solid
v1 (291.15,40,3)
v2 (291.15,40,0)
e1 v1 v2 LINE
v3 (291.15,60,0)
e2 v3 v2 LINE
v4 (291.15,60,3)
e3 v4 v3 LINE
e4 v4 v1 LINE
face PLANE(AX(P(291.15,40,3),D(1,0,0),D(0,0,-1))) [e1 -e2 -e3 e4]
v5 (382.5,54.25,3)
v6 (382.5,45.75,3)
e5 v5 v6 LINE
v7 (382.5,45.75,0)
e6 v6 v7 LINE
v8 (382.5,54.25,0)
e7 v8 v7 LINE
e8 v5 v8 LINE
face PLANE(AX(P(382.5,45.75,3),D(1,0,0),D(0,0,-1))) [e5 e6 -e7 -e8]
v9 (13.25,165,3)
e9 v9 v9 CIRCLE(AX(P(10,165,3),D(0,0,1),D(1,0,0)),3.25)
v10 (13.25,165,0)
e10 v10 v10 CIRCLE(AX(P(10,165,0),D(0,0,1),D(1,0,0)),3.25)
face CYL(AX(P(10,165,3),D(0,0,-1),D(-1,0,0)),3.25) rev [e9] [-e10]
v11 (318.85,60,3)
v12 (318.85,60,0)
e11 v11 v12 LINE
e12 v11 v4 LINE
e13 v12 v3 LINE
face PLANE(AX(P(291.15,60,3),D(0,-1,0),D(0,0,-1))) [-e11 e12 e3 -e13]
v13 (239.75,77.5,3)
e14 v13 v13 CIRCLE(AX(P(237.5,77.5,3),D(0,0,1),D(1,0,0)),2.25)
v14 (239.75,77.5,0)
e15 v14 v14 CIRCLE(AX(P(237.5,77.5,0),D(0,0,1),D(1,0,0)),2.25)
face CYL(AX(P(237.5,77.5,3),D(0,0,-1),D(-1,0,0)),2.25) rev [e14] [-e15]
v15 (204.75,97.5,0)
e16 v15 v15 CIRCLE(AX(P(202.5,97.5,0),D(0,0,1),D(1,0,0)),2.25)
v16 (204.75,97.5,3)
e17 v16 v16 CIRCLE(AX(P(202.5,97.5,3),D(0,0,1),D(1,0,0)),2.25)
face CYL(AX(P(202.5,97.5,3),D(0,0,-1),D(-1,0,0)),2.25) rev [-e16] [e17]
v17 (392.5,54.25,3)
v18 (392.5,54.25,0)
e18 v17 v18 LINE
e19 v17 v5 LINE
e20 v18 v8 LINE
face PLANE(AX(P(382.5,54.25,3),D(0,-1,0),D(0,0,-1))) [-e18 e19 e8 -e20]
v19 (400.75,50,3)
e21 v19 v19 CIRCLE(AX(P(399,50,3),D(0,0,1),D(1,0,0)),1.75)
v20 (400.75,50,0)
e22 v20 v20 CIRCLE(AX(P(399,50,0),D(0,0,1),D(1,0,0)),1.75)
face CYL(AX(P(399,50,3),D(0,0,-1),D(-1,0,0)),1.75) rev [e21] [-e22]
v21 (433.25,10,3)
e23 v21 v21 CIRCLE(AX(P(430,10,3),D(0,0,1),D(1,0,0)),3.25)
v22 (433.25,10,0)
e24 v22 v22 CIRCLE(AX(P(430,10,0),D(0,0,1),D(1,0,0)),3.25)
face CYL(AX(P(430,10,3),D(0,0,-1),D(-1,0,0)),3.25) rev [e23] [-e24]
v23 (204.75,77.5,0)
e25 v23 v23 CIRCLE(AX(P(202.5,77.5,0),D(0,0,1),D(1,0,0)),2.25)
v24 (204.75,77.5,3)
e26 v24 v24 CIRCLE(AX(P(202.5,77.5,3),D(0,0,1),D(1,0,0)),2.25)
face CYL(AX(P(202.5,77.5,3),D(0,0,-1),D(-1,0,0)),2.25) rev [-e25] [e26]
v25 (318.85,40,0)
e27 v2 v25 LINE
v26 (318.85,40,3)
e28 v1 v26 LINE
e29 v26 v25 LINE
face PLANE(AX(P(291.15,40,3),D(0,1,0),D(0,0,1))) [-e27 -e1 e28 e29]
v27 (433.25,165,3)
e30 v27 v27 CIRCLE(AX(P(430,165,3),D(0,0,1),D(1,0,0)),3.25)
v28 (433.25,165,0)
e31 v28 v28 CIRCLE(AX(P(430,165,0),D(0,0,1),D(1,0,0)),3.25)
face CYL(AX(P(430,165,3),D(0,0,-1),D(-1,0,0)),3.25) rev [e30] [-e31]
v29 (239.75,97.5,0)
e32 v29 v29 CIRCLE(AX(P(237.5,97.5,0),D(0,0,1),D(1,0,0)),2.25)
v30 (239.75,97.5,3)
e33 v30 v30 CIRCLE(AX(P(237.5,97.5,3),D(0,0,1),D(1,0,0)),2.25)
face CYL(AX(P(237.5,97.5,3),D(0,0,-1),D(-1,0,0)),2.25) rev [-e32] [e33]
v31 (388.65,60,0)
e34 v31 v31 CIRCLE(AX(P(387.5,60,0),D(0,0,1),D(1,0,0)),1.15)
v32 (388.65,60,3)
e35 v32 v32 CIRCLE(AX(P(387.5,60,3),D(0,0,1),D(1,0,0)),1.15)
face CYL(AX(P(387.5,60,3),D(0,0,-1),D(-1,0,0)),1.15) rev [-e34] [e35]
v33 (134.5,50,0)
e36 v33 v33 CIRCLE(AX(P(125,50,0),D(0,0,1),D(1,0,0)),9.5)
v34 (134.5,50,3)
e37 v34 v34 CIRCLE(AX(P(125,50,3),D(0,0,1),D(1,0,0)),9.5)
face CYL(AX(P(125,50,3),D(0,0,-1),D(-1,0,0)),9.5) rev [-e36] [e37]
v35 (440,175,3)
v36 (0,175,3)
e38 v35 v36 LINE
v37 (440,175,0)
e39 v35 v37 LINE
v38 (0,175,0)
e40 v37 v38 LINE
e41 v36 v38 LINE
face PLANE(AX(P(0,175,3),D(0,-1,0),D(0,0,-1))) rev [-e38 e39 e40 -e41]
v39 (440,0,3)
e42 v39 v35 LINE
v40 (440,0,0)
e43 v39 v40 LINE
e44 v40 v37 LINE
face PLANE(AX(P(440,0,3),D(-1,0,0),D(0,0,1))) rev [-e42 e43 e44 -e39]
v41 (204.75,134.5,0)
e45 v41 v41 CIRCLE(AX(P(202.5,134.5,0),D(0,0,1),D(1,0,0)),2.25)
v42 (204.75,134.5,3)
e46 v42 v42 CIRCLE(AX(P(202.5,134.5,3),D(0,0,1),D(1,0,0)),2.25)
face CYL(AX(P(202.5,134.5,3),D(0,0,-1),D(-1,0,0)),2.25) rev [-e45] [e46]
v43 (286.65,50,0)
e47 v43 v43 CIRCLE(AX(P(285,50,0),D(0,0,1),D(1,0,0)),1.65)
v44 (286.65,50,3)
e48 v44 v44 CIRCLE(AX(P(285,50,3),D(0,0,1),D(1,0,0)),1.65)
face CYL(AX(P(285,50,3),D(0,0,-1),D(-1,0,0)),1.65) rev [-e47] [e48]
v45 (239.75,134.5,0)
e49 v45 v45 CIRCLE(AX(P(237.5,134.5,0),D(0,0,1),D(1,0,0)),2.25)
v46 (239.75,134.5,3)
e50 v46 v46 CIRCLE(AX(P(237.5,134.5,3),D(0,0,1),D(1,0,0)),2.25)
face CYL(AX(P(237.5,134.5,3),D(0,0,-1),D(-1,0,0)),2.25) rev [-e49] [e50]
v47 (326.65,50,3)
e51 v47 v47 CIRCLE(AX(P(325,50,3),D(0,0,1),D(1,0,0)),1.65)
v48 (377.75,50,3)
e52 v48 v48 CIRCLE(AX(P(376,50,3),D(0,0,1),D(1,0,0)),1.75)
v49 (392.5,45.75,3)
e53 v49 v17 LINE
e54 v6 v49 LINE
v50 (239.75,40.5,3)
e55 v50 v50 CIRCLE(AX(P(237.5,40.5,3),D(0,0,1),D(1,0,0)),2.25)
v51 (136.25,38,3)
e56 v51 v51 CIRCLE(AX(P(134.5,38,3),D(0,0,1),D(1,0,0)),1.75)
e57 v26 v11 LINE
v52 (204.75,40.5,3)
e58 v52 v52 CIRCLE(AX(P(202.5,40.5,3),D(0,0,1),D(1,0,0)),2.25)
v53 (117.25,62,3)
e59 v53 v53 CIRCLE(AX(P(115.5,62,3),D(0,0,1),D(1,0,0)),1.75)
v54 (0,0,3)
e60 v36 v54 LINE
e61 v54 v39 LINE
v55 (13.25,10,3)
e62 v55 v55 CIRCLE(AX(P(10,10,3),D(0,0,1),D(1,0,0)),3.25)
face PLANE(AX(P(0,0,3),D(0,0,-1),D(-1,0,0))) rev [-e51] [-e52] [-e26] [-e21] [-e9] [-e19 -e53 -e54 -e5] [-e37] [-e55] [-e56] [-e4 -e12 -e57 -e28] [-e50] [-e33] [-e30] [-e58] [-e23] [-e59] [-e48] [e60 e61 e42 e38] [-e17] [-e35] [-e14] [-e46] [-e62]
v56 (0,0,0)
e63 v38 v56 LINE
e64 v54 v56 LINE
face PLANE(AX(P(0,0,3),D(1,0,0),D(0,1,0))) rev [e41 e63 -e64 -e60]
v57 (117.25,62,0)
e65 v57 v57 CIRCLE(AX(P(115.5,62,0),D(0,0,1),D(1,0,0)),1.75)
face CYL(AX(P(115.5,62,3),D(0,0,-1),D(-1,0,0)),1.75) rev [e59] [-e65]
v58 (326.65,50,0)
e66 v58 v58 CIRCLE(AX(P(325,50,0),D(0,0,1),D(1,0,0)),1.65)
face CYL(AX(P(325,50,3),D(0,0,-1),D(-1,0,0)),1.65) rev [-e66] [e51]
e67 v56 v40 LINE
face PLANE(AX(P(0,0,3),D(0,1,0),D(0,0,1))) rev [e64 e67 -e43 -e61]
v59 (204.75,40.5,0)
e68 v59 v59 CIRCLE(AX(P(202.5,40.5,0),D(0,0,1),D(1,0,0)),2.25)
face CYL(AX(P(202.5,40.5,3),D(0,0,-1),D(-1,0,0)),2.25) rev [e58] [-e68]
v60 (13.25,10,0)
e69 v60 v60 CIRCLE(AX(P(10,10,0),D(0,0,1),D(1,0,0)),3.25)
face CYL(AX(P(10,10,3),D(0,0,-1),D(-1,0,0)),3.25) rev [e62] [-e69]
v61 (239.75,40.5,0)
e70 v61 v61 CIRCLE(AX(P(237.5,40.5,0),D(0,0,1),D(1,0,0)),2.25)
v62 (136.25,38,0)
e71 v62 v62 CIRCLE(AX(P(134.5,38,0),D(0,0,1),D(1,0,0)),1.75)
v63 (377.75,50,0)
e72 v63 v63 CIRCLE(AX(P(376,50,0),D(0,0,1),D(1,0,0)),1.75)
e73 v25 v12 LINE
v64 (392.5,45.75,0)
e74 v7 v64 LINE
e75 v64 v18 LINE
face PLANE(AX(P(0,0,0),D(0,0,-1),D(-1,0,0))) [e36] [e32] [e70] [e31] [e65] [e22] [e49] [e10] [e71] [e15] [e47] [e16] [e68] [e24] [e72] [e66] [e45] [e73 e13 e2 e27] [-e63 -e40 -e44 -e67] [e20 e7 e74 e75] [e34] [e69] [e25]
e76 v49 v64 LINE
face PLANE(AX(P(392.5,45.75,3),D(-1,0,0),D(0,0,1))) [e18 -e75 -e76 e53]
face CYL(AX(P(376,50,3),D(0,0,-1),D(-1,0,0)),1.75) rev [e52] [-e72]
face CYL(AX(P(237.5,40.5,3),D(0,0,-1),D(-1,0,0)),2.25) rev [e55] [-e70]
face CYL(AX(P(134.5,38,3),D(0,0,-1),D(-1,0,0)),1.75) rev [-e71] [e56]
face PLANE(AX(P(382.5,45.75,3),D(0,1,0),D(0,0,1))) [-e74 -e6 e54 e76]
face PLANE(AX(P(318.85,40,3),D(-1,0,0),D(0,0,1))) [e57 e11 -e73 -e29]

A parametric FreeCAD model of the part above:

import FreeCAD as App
import Part
import Sketcher

doc = App.newDocument("Part")
body = doc.addObject("PartDesign::Body", "Body")

# Sketch on XY plane
sketch1 = body.newObject("Sketcher::SketchObject", "Sketch")
sketch1.AttachmentSupport = (doc.getObject("XY_Plane"), [""])
sketch1.MapMode = "FlatFace"
sketch1.addGeometry([
    Part.LineSegment(App.Vector(0, 175, 0), App.Vector(0, 0, 0)),  # 0
    Part.LineSegment(App.Vector(0, 0, 0), App.Vector(440, 0, 0)),  # 1
    Part.LineSegment(App.Vector(440, 0, 0), App.Vector(440, 175, 0)),  # 2
    Part.LineSegment(App.Vector(440, 175, 0), App.Vector(0, 175, 0)),  # 3
    Part.Circle(App.Vector(10, 10, 0), App.Vector(0, 0, 1), 3.2),  # 4
    Part.Circle(App.Vector(134.5, 38, 0), App.Vector(0, 0, 1), 1.8),  # 5
    Part.Circle(App.Vector(202.5, 40.5, 0), App.Vector(0, 0, 1), 2.2),  # 6
    Part.Circle(App.Vector(125, 50, 0), App.Vector(0, 0, 1), 9.5),  # 7
    Part.Circle(App.Vector(115.5, 62, 0), App.Vector(0, 0, 1), 1.8),  # 8
    Part.Circle(App.Vector(202.5, 77.5, 0), App.Vector(0, 0, 1), 2.2),  # 9
    Part.Circle(App.Vector(237.5, 40.5, 0), App.Vector(0, 0, 1), 2.2),  # 10
    Part.Circle(App.Vector(430, 10, 0), App.Vector(0, 0, 1), 3.2),  # 11
    Part.Circle(App.Vector(285, 50, 0), App.Vector(0, 0, 1), 1.6),  # 12
    Part.LineSegment(App.Vector(318.9, 40, 0), App.Vector(291.1, 40, 0)),  # 13
    Part.LineSegment(App.Vector(291.1, 40, 0), App.Vector(291.1, 60, 0)),  # 14
    Part.LineSegment(App.Vector(291.1, 60, 0), App.Vector(318.9, 60, 0)),  # 15
    Part.LineSegment(App.Vector(318.9, 60, 0), App.Vector(318.9, 40, 0)),  # 16
    Part.Circle(App.Vector(325, 50, 0), App.Vector(0, 0, 1), 1.6),  # 17
    Part.Circle(App.Vector(237.5, 77.5, 0), App.Vector(0, 0, 1), 2.2),  # 18
    Part.Circle(App.Vector(376, 50, 0), App.Vector(0, 0, 1), 1.8),  # 19
    Part.LineSegment(App.Vector(392.5, 45.8, 0), App.Vector(382.5, 45.8, 0)),  # 20
    Part.LineSegment(App.Vector(382.5, 45.8, 0), App.Vector(382.5, 54.2, 0)),  # 21
    Part.LineSegment(App.Vector(382.5, 54.2, 0), App.Vector(392.5, 54.2, 0)),  # 22
    Part.LineSegment(App.Vector(392.5, 54.2, 0), App.Vector(392.5, 45.8, 0)),  # 23
    Part.Circle(App.Vector(399, 50, 0), App.Vector(0, 0, 1), 1.8),  # 24
    Part.Circle(App.Vector(387.5, 60, 0), App.Vector(0, 0, 1), 1.1),  # 25
    Part.Circle(App.Vector(202.5, 97.5, 0), App.Vector(0, 0, 1), 2.2),  # 26
    Part.Circle(App.Vector(10, 165, 0), App.Vector(0, 0, 1), 3.2),  # 27
    Part.Circle(App.Vector(202.5, 134.5, 0), App.Vector(0, 0, 1), 2.2),  # 28
    Part.Circle(App.Vector(237.5, 97.5, 0), App.Vector(0, 0, 1), 2.2),  # 29
    Part.Circle(App.Vector(237.5, 134.5, 0), App.Vector(0, 0, 1), 2.2),  # 30
    Part.Circle(App.Vector(430, 165, 0), App.Vector(0, 0, 1), 3.2),  # 31
], False)
sketch1.addConstraint([
    Sketcher.Constraint("Coincident", 0, 2, 1, 1),
    Sketcher.Constraint("Coincident", 1, 2, 2, 1),
    Sketcher.Constraint("Coincident", 2, 2, 3, 1),
    Sketcher.Constraint("Coincident", 3, 2, 0, 1),
    Sketcher.Constraint("Coincident", 13, 2, 14, 1),
    Sketcher.Constraint("Coincident", 14, 2, 15, 1),
    Sketcher.Constraint("Coincident", 15, 2, 16, 1),
    Sketcher.Constraint("Coincident", 16, 2, 13, 1),
    Sketcher.Constraint("Coincident", 20, 2, 21, 1),
    Sketcher.Constraint("Coincident", 21, 2, 22, 1),
    Sketcher.Constraint("Coincident", 22, 2, 23, 1),
    Sketcher.Constraint("Coincident", 23, 2, 20, 1),
    Sketcher.Constraint("Vertical", 0),
    Sketcher.Constraint("Horizontal", 1),
    Sketcher.Constraint("Vertical", 2),
    Sketcher.Constraint("Horizontal", 3),
    Sketcher.Constraint("Horizontal", 13),
    Sketcher.Constraint("Vertical", 14),
    Sketcher.Constraint("Horizontal", 15),
    Sketcher.Constraint("Vertical", 16),
    Sketcher.Constraint("Horizontal", 20),
    Sketcher.Constraint("Vertical", 21),
    Sketcher.Constraint("Horizontal", 22),
    Sketcher.Constraint("Vertical", 23),
    Sketcher.Constraint("Coincident", 0, 2, -1, 1),
    Sketcher.Constraint("Equal", 5, 8),
    Sketcher.Constraint("Equal", 6, 9),
    Sketcher.Constraint("Equal", 9, 10),
    Sketcher.Constraint("Equal", 4, 11),
    Sketcher.Constraint("Equal", 12, 17),
    Sketcher.Constraint("Equal", 10, 18),
    Sketcher.Constraint("Equal", 8, 19),
    Sketcher.Constraint("Equal", 19, 24),
    Sketcher.Constraint("Equal", 18, 26),
    Sketcher.Constraint("Equal", 11, 27),
    Sketcher.Constraint("Equal", 26, 28),
    Sketcher.Constraint("Equal", 28, 29),
    Sketcher.Constraint("Equal", 29, 30),
    Sketcher.Constraint("Equal", 27, 31),
    Sketcher.Constraint("Horizontal", 6, 3, 10, 3),
    Sketcher.Constraint("Horizontal", 4, 3, 11, 3),
    Sketcher.Constraint("Horizontal", 7, 3, 12, 3),
    Sketcher.Constraint("Horizontal", 12, 3, 17, 3),
    Sketcher.Constraint("Horizontal", 9, 3, 18, 3),
    Sketcher.Constraint("Horizontal", 17, 3, 19, 3),
    Sketcher.Constraint("Horizontal", 19, 3, 24, 3),
    Sketcher.Constraint("Horizontal", 26, 3, 29, 3),
    Sketcher.Constraint("Horizontal", 28, 3, 30, 3),
    Sketcher.Constraint("Horizontal", 27, 3, 31, 3),
    Sketcher.Constraint("Horizontal", 25, 3, 14, 2),
    Sketcher.Constraint("Vertical", 6, 3, 9, 3),
    Sketcher.Constraint("Vertical", 10, 3, 18, 3),
    Sketcher.Constraint("Vertical", 9, 3, 26, 3),
    Sketcher.Constraint("Vertical", 4, 3, 27, 3),
    Sketcher.Constraint("Vertical", 26, 3, 28, 3),
    Sketcher.Constraint("Vertical", 18, 3, 29, 3),
    Sketcher.Constraint("Vertical", 29, 3, 30, 3),
    Sketcher.Constraint("Vertical", 11, 3, 31, 3),
    Sketcher.Constraint("Diameter", 7, 19.0),
    Sketcher.Constraint("Diameter", 4, 6.5),
    Sketcher.Constraint("Diameter", 5, 3.5),
    Sketcher.Constraint("Diameter", 6, 4.5),
    Sketcher.Constraint("Diameter", 12, 3.3),
    Sketcher.Constraint("Diameter", 25, 2.3),
    Sketcher.Constraint("DistanceX", 1, 1, 1, 2, 440.0),
    Sketcher.Constraint("DistanceX", 20, 2, 20, 1, 10.0),
    Sketcher.Constraint("DistanceY", 0, 2, 0, 1, 175.0),
    Sketcher.Constraint("DistanceY", 14, 1, 14, 2, 20.0),
    Sketcher.Constraint("DistanceX", 13, 2, 13, 1, 27.7),
    Sketcher.Constraint("DistanceY", 21, 1, 21, 2, 8.5),
    Sketcher.Constraint("DistanceX", -1, 1, 4, 3, 10.0),
    Sketcher.Constraint("DistanceY", -1, 1, 4, 3, 10.0),
    Sketcher.Constraint("DistanceY", -1, 1, 5, 3, 38.0),
    Sketcher.Constraint("DistanceX", -1, 1, 7, 3, 125.0),
    Sketcher.Constraint("DistanceY", -1, 1, 7, 3, 50.0),
    Sketcher.Constraint("DistanceY", -1, 1, 8, 3, 62.0),
    Sketcher.Constraint("DistanceX", -1, 1, 11, 3, 430.0),
    Sketcher.Constraint("DistanceX", -1, 1, 12, 3, 285.0),
    Sketcher.Constraint("DistanceX", -1, 1, 17, 3, 325.0),
    Sketcher.Constraint("DistanceX", -1, 1, 19, 3, 376.0),
    Sketcher.Constraint("DistanceX", -1, 1, 24, 3, 399.0),
    Sketcher.Constraint("DistanceY", -1, 1, 25, 3, 60.0),
    Sketcher.Constraint("DistanceY", -1, 1, 27, 3, 165.0),
    Sketcher.Constraint("DistanceX", 5, 3, 6, 3, 68.0),
    Sketcher.Constraint("DistanceX", 8, 3, 5, 3, 19.0),
    Sketcher.Constraint("DistanceY", 6, 3, 9, 3, 37.0),
    Sketcher.Constraint("DistanceX", 6, 3, 10, 3, 35.0),
    Sketcher.Constraint("DistanceY", 9, 3, 26, 3, 20.0),
    Sketcher.Constraint("DistanceY", 26, 3, 28, 3, 37.0),
    Sketcher.Constraint("DistanceX", 20, 2, 25, 3, 5.0),
    Sketcher.Constraint("DistanceX", -1, 1, 5, 3, 134.5),
    Sketcher.Constraint("DistanceY", -1, 1, 6, 3, 40.5),
    Sketcher.Constraint("DistanceX", -1, 1, 25, 3, 387.5),
    Sketcher.Constraint("DistanceX", -1, 1, 13, 2, 291.15),
    Sketcher.Constraint("DistanceY", -1, 1, 20, 2, 45.75),
])
pad1 = body.newObject("PartDesign::Pad", "Pad")
pad1.Profile = sketch1
pad1.Length = 3

doc.recompute()
